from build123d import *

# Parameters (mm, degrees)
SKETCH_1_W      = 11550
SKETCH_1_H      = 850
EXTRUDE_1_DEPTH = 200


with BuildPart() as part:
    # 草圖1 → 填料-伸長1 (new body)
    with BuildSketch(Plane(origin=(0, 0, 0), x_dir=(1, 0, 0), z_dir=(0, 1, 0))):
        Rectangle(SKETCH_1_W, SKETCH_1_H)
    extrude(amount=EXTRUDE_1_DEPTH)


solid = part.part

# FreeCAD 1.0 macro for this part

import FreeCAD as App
import Part
import Sketcher
from FreeCAD import Vector
Q = App.Units.Quantity

doc = App.newDocument("Part")
body = doc.addObject("PartDesign::Body", "Body")

# Sketch on XZ plane
sketch1 = body.newObject("Sketcher::SketchObject", "Sketch")
sketch1.AttachmentSupport = (doc.getObject("XZ_Plane"), [""])
sketch1.MapMode = "FlatFace"
sketch1.addGeometry([
    Part.LineSegment(Vector(-5775, -425, 0), Vector(-5775, 425, 0)),
    Part.LineSegment(Vector(-5775, 425, 0), Vector(5775, 425, 0)),
    Part.LineSegment(Vector(5775, 425, 0), Vector(5775, -425, 0)),
    Part.LineSegment(Vector(5775, -425, 0), Vector(-5775, -425, 0)),
], False)
sketch1.addConstraint([
    Sketcher.Constraint("Coincident", 0, 2, 1, 1),
    Sketcher.Constraint("Coincident", 1, 2, 2, 1),
    Sketcher.Constraint("Coincident", 2, 2, 3, 1),
    Sketcher.Constraint("Coincident", 3, 2, 0, 1),
    Sketcher.Constraint("Vertical", 0),
    Sketcher.Constraint("Horizontal", 1),
    Sketcher.Constraint("Vertical", 2),
    Sketcher.Constraint("Horizontal", 3),
    Sketcher.Constraint("Symmetric", 0, 2, 2, 2, -1, 1),
    Sketcher.Constraint("DistanceX", 1, 1, 1, 2, Q("11550 mm")),
    Sketcher.Constraint("DistanceY", 0, 1, 0, 2, Q("850 mm")),
])
pad1 = body.newObject("PartDesign::Pad", "Pad")
pad1.Profile = sketch1
pad1.Length = 200
pad1.Reversed = True

doc.recompute()
